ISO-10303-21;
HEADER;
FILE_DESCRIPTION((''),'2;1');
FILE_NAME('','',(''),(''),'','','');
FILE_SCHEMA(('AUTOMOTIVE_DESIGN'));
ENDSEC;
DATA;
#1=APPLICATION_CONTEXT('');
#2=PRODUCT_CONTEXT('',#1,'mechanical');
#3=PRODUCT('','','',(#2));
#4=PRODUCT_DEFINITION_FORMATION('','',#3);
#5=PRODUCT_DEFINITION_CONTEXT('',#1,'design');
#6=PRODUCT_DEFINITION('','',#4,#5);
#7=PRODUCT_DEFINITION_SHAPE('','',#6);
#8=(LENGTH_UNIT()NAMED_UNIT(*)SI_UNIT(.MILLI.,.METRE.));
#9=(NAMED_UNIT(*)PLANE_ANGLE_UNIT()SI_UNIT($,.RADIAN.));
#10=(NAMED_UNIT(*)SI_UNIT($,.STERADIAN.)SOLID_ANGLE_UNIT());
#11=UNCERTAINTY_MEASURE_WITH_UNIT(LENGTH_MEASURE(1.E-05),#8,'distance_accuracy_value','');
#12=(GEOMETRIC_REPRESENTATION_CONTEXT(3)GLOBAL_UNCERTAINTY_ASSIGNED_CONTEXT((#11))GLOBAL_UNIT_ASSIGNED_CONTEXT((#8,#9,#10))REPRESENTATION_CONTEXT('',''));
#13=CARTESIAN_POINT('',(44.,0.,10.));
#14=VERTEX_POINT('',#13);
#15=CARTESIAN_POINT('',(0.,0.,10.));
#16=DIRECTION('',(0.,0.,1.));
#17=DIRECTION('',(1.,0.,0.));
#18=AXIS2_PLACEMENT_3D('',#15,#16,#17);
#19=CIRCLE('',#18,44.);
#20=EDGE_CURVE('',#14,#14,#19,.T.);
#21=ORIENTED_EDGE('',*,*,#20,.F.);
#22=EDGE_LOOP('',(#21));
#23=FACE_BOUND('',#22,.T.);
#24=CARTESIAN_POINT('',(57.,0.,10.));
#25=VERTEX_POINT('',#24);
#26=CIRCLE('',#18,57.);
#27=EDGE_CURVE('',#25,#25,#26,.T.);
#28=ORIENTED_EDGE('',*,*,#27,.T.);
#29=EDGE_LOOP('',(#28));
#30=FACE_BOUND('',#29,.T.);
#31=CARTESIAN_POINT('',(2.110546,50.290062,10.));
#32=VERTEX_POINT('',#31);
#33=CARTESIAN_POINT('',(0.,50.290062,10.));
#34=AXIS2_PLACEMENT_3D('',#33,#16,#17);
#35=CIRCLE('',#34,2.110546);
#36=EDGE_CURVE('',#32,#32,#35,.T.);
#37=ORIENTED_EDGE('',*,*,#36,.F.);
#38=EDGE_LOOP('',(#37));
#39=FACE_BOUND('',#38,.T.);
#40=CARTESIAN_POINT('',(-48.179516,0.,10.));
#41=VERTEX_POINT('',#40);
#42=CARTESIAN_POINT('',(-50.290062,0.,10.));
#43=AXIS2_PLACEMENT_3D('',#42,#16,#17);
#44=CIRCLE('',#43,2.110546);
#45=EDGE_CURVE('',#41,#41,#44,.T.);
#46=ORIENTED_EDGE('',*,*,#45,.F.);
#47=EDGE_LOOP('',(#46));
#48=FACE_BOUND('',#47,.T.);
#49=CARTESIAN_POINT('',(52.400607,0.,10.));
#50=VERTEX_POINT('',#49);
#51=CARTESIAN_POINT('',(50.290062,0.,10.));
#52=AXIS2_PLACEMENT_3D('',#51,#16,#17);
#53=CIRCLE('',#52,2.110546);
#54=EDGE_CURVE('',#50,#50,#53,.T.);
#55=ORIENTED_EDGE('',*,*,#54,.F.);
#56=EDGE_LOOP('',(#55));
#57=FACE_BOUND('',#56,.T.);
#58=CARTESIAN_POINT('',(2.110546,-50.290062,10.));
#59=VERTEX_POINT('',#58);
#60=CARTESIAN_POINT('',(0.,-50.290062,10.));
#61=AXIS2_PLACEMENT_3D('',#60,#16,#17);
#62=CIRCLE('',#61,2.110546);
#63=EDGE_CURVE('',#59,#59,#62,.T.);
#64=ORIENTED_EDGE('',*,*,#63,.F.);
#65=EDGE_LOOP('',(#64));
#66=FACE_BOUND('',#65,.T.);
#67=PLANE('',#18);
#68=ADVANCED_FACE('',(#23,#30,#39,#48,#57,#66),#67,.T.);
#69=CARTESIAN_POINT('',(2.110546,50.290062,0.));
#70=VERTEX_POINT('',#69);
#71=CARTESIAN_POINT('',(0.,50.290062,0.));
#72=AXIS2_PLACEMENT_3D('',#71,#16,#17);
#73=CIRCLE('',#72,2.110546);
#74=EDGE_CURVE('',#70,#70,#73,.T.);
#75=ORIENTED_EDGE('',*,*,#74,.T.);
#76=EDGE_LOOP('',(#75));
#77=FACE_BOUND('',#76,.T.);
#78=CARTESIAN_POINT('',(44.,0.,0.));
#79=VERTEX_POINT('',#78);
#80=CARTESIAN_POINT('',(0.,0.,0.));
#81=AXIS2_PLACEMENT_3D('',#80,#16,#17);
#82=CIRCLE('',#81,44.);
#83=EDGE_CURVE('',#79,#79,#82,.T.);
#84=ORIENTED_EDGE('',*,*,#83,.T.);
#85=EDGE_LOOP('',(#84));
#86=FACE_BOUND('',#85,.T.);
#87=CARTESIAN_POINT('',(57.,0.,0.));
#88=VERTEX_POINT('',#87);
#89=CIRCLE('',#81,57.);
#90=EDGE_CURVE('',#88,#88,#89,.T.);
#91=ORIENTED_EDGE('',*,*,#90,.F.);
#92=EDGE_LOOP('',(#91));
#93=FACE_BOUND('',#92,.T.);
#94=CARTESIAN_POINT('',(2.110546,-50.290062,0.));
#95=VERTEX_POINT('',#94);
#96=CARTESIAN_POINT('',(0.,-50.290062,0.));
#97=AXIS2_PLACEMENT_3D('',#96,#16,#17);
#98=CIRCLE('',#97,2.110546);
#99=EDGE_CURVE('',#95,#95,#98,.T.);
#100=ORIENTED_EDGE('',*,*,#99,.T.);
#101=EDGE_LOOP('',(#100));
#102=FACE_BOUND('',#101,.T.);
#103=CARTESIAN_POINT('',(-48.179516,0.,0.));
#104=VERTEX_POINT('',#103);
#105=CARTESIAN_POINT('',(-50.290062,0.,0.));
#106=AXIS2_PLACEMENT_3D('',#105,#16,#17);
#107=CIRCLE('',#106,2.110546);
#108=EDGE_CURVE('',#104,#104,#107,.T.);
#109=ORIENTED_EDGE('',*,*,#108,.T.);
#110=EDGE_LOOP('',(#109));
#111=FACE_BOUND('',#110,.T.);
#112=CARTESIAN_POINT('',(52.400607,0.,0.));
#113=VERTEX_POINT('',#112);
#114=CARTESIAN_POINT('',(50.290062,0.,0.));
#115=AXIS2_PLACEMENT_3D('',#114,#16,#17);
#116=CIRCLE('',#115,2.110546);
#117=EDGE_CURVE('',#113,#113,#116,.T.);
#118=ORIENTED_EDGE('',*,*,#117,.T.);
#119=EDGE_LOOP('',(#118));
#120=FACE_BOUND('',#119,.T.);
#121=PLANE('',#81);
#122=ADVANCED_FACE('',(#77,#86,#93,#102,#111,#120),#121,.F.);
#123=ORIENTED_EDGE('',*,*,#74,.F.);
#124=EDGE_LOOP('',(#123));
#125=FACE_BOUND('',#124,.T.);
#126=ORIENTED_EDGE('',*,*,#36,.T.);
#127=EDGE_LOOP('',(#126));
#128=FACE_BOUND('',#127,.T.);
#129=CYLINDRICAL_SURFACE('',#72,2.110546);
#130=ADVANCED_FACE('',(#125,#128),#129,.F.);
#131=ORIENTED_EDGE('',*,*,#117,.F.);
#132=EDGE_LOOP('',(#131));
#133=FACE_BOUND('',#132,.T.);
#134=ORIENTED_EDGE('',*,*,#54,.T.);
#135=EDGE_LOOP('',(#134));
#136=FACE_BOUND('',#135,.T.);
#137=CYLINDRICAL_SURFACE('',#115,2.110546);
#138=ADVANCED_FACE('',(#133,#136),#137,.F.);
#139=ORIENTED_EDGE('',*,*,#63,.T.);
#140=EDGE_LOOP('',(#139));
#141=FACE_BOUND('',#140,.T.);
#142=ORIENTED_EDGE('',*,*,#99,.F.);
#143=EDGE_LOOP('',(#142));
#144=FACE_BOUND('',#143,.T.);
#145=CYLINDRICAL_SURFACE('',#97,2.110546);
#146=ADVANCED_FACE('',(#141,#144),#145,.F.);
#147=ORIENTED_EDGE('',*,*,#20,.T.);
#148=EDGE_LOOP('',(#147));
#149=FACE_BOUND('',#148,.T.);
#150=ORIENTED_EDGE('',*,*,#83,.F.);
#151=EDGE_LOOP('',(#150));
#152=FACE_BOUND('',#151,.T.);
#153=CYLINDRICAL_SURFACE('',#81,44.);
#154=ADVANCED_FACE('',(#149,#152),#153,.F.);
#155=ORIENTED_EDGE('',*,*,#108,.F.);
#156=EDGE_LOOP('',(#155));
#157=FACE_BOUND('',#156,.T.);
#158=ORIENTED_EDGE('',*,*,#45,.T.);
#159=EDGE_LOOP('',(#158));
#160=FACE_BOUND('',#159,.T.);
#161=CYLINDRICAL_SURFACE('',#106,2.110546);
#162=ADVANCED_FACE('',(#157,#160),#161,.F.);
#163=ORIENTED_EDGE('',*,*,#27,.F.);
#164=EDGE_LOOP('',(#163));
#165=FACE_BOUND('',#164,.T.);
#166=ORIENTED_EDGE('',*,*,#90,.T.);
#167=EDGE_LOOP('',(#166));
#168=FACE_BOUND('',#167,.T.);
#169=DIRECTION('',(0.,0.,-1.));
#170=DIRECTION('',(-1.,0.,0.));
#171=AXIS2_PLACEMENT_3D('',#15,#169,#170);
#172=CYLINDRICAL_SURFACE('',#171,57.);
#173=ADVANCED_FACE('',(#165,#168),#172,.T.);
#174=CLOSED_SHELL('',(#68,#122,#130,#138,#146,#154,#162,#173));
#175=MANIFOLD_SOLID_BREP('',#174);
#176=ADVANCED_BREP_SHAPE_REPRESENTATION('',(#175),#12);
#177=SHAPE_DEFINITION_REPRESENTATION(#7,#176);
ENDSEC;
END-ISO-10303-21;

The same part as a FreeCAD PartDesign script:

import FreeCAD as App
import Part
import Sketcher

doc = App.newDocument("Part")
body = doc.addObject("PartDesign::Body", "Body")

# Sketch on XY plane
sketch1 = body.newObject("Sketcher::SketchObject", "Sketch")
sketch1.AttachmentSupport = (doc.getObject("XY_Plane"), [""])
sketch1.MapMode = "FlatFace"
sketch1.addGeometry(Part.Circle(App.Vector(0, 0, 0), App.Vector(0, 0, 1), 57), False)
sketch1.addConstraint([
    Sketcher.Constraint("Coincident", 0, 3, -1, 1),
    Sketcher.Constraint("Diameter", 0, 114.0),
])
pad1 = body.newObject("PartDesign::Pad", "Pad")
pad1.Profile = sketch1
pad1.Length = 10

# Sketch on XY plane
sketch2 = body.newObject("Sketcher::SketchObject", "Sketch001")
sketch2.AttachmentSupport = (doc.getObject("XY_Plane"), [""])
sketch2.MapMode = "FlatFace"
sketch2.AttachmentOffset = App.Placement(App.Vector(0, 0, 10), App.Rotation())
sketch2.addGeometry(Part.Circle(App.Vector(0, 0, 0), App.Vector(0, 0, 1), 44), False)
sketch2.addConstraint([
    Sketcher.Constraint("Coincident", 0, 3, -1, 1),
    Sketcher.Constraint("Diameter", 0, 88.0),
])
pocket1 = body.newObject("PartDesign::Pocket", "Pocket")
pocket1.Profile = sketch2
pocket1.Length = 10

# Sketch on XY plane
sketch3 = body.newObject("Sketcher::SketchObject", "Sketch002")
sketch3.AttachmentSupport = (doc.getObject("XY_Plane"), [""])
sketch3.MapMode = "FlatFace"
sketch3.AttachmentOffset = App.Placement(App.Vector(0, 0, 10), App.Rotation())
sketch3.addGeometry([
    Part.Circle(App.Vector(-50.3, 0, 0), App.Vector(0, 0, 1), 2.1),
    Part.Circle(App.Vector(0, 50.3, 0), App.Vector(0, 0, 1), 2.1),
    Part.Circle(App.Vector(50.3, 0, 0), App.Vector(0, 0, 1), 2.1),
    Part.Circle(App.Vector(0, -50.3, 0), App.Vector(0, 0, 1), 2.1),
], False)
sketch3.addConstraint([
    Sketcher.Constraint("Equal", 0, 1),
    Sketcher.Constraint("Equal", 1, 2),
    Sketcher.Constraint("Equal", 2, 3),
    Sketcher.Constraint("Symmetric", 0, 3, 2, 3, -1, 1),
    Sketcher.Constraint("Symmetric", 1, 3, 3, 3, -1, 1),
    Sketcher.Constraint("PointOnObject", 0, 3, -1),
    Sketcher.Constraint("PointOnObject", 1, 3, -2),
    Sketcher.Constraint("Diameter", 0, 4.221092),
    Sketcher.Constraint("DistanceX", 0, 3, -1, 1, 50.290062),
    Sketcher.Constraint("DistanceY", -1, 1, 1, 3, 50.290062),
])
pocket2 = body.newObject("PartDesign::Pocket", "Pocket001")
pocket2.Profile = sketch3
pocket2.Length = 10

doc.recompute()
